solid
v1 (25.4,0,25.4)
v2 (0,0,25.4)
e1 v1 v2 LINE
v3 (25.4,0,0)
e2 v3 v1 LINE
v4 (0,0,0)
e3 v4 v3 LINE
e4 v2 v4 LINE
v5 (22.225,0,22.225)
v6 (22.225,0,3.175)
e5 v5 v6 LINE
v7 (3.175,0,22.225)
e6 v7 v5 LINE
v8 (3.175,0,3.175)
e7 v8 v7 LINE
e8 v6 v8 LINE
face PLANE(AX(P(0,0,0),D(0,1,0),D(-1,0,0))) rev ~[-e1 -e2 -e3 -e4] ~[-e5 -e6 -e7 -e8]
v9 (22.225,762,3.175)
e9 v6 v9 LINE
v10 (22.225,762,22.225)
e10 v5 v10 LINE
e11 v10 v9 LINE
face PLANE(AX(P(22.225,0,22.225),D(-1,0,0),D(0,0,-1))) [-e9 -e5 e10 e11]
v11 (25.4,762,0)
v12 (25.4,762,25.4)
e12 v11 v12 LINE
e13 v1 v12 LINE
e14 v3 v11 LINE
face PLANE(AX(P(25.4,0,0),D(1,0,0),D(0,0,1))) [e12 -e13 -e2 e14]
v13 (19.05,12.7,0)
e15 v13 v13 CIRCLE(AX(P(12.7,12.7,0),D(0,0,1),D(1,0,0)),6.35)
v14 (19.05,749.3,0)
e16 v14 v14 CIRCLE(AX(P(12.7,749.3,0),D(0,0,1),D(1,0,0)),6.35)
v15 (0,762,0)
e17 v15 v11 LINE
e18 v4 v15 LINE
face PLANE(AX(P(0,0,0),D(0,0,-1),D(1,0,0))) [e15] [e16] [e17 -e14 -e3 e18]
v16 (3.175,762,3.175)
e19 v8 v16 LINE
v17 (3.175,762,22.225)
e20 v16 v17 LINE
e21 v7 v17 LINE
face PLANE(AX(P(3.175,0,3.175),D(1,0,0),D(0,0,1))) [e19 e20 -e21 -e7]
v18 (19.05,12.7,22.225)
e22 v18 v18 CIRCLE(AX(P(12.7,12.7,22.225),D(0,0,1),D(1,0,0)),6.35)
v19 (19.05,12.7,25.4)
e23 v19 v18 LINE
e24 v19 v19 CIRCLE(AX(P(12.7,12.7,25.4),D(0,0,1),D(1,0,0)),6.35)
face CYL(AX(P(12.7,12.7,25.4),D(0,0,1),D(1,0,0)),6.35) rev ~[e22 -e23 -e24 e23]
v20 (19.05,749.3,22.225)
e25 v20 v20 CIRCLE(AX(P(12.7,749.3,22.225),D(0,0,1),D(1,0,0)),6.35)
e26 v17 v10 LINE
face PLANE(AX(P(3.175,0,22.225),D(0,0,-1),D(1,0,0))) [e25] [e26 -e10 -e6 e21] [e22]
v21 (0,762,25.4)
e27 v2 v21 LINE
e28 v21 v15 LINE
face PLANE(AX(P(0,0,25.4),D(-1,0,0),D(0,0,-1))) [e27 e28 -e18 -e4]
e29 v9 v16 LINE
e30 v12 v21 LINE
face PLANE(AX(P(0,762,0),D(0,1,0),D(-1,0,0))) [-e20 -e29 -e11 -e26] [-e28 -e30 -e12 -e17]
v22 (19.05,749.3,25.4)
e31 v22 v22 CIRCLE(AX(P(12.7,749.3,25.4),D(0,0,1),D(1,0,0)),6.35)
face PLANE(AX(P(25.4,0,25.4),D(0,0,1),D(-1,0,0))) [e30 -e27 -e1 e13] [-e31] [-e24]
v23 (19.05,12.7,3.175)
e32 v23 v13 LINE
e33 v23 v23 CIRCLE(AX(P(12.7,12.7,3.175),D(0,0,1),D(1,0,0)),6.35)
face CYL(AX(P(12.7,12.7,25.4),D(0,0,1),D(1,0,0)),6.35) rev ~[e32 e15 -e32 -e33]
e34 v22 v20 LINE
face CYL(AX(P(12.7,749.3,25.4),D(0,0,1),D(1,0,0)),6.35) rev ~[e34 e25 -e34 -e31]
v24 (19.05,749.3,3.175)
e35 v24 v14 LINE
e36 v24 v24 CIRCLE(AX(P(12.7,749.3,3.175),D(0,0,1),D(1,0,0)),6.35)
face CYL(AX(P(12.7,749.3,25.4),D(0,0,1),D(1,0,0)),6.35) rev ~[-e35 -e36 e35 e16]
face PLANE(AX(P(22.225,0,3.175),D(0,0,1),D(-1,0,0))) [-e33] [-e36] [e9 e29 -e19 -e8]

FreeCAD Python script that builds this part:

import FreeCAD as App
import Part
import Sketcher
Q = App.Units.Quantity

doc = App.newDocument("Part")
body = doc.addObject("PartDesign::Body", "Body")

# Sketch on XZ plane
sketch1 = body.newObject("Sketcher::SketchObject", "Sketch")
sketch1.AttachmentSupport = (doc.getObject("XZ_Plane"), [""])
sketch1.MapMode = "FlatFace"
sketch1.addGeometry([
    Part.LineSegment(App.Vector(25, 0, 0), App.Vector(0, 0, 0)),  # 0
    Part.LineSegment(App.Vector(0, 0, 0), App.Vector(0, 25, 0)),  # 1
    Part.LineSegment(App.Vector(0, 25, 0), App.Vector(25, 25, 0)),  # 2
    Part.LineSegment(App.Vector(25, 25, 0), App.Vector(25, 0, 0)),  # 3
    Part.LineSegment(App.Vector(3, 3, 0), App.Vector(22, 3, 0)),  # 4
    Part.LineSegment(App.Vector(22, 3, 0), App.Vector(22, 22, 0)),  # 5
    Part.LineSegment(App.Vector(22, 22, 0), App.Vector(3, 22, 0)),  # 6
    Part.LineSegment(App.Vector(3, 22, 0), App.Vector(3, 3, 0)),  # 7
], False)
sketch1.addConstraint([
    Sketcher.Constraint("Coincident", 0, 2, 1, 1),
    Sketcher.Constraint("Coincident", 1, 2, 2, 1),
    Sketcher.Constraint("Coincident", 2, 2, 3, 1),
    Sketcher.Constraint("Coincident", 3, 2, 0, 1),
    Sketcher.Constraint("Coincident", 4, 2, 5, 1),
    Sketcher.Constraint("Coincident", 5, 2, 6, 1),
    Sketcher.Constraint("Coincident", 6, 2, 7, 1),
    Sketcher.Constraint("Coincident", 7, 2, 4, 1),
    Sketcher.Constraint("Horizontal", 0),
    Sketcher.Constraint("Vertical", 1),
    Sketcher.Constraint("Horizontal", 2),
    Sketcher.Constraint("Vertical", 3),
    Sketcher.Constraint("Horizontal", 4),
    Sketcher.Constraint("Vertical", 5),
    Sketcher.Constraint("Horizontal", 6),
    Sketcher.Constraint("Vertical", 7),
    Sketcher.Constraint("Coincident", 0, 2, -1, 1),
    Sketcher.Constraint("Equal", 2, 1),
    Sketcher.Constraint("Equal", 6, 5),
    Sketcher.Constraint("DistanceX", 0, 2, 0, 1, Q("1 in")),
    Sketcher.Constraint("DistanceY", -1, 1, 4, 2, Q("0.125 in")),
    Sketcher.Constraint("DistanceX", -1, 1, 6, 2, Q("0.125 in")),
    Sketcher.Constraint("DistanceX", 4, 2, 3, 2, Q("0.125 in")),
])
pad1 = body.newObject("PartDesign::Pad", "Pad")
pad1.Profile = sketch1
pad1.Length = Q("30 in")
pad1.Reversed = True

# Sketch on XY plane
sketch2 = body.newObject("Sketcher::SketchObject", "Sketch001")
sketch2.AttachmentSupport = (doc.getObject("XY_Plane"), [""])
sketch2.MapMode = "FlatFace"
sketch2.AttachmentOffset = App.Placement(App.Vector(0, 0, 1 * 25.4), App.Rotation())
sketch2.addGeometry([
    Part.Circle(App.Vector(13, 13, 0), App.Vector(0, 0, 1), 6),
    Part.Circle(App.Vector(13, 749, 0), App.Vector(0, 0, 1), 6),
], False)
sketch2.addConstraint([
    Sketcher.Constraint("Equal", 0, 1),
    Sketcher.Constraint("Vertical", 0, 3, 1, 3),
    Sketcher.Constraint("Diameter", 0, Q("0.5 in")),
    Sketcher.Constraint("DistanceX", -1, 1, 0, 3, Q("0.5 in")),
    Sketcher.Constraint("DistanceY", -1, 1, 0, 3, Q("0.5 in")),
    Sketcher.Constraint("DistanceY", 0, 3, 1, 3, Q("29 in")),
])
pocket1 = body.newObject("PartDesign::Pocket", "Pocket")
pocket1.Profile = sketch2
pocket1.Length = Q("1 in")

doc.recompute()
